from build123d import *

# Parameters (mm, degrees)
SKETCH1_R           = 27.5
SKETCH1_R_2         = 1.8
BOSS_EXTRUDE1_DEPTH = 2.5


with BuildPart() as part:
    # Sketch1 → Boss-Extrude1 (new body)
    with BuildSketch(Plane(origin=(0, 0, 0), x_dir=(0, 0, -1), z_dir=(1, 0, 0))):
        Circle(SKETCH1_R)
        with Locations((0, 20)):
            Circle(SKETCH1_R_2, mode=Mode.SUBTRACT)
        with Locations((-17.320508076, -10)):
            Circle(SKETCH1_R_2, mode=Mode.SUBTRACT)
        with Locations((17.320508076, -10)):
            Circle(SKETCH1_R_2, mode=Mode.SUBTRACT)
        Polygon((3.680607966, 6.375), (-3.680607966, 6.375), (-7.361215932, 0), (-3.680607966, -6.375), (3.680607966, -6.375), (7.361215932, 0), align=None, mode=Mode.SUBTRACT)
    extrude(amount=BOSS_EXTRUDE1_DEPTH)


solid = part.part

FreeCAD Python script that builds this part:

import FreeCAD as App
import Part
import Sketcher

V = App.Vector
Q = App.Units.Quantity

doc = App.newDocument("Part")
body = doc.addObject("PartDesign::Body", "Body")

# Sketch on YZ plane
sketch1 = body.newObject("Sketcher::SketchObject", "Sketch")
sketch1.AttachmentSupport = (doc.getObject("YZ_Plane"), [""])
sketch1.MapMode = "FlatFace"
sketch1.addGeometry(Part.Circle(V(0, 0, 0), V(0, 0, 1), 27.5), False)
sketch1.addGeometry(Part.Circle(V(-10, 17.3, 0), V(0, 0, 1), 1.8), False)
sketch1.addGeometry(Part.Circle(V(-10, -17.3, 0), V(0, 0, 1), 1.8), False)
sketch1.addGeometry(Part.LineSegment(V(6.4, 3.7, 0), V(6.4, -3.7, 0)), False)
sketch1.addGeometry(Part.LineSegment(V(6.4, -3.7, 0), V(0, -7.4, 0)), False)
sketch1.addGeometry(Part.LineSegment(V(0, -7.4, 0), V(-6.4, -3.7, 0)), False)
sketch1.addGeometry(Part.LineSegment(V(-6.4, -3.7, 0), V(-6.4, 3.7, 0)), False)
sketch1.addGeometry(Part.LineSegment(V(-6.4, 3.7, 0), V(0, 7.4, 0)), False)
sketch1.addGeometry(Part.LineSegment(V(0, 7.4, 0), V(6.4, 3.7, 0)), False)
sketch1.addGeometry(Part.Circle(V(20, 0, 0), V(0, 0, 1), 1.8), False)
sketch1.addConstraint(Sketcher.Constraint("Coincident", 3, 2, 4, 1))
sketch1.addConstraint(Sketcher.Constraint("Coincident", 4, 2, 5, 1))
sketch1.addConstraint(Sketcher.Constraint("Coincident", 5, 2, 6, 1))
sketch1.addConstraint(Sketcher.Constraint("Coincident", 6, 2, 7, 1))
sketch1.addConstraint(Sketcher.Constraint("Coincident", 7, 2, 8, 1))
sketch1.addConstraint(Sketcher.Constraint("Coincident", 8, 2, 3, 1))
sketch1.addConstraint(Sketcher.Constraint("Vertical", 3))
sketch1.addConstraint(Sketcher.Constraint("Vertical", 6))
sketch1.addConstraint(Sketcher.Constraint("Coincident", 0, 3, -1, 1))
sketch1.addConstraint(Sketcher.Constraint("Equal", 1, 2))
sketch1.addConstraint(Sketcher.Constraint("Equal", 2, 9))
sketch1.addConstraint(Sketcher.Constraint("Symmetric", 3, 2, 6, 2, -1, 1))
sketch1.addConstraint(Sketcher.Constraint("Symmetric", 4, 2, 7, 2, -1, 1))
sketch1.addConstraint(Sketcher.Constraint("Symmetric", 1, 3, 2, 3, -1))
sketch1.addConstraint(Sketcher.Constraint("PointOnObject", 9, 3, -1))
sketch1.addConstraint(Sketcher.Constraint("PointOnObject", 4, 2, -2))
sketch1.addConstraint(Sketcher.Constraint("Parallel", 5, 8))
sketch1.addConstraint(Sketcher.Constraint("Horizontal", 3, 2, 5, 2))
sketch1.addConstraint(Sketcher.Constraint("Diameter", 0, Q("55 mm")))
sketch1.addConstraint(Sketcher.Constraint("Diameter", 1, Q("3.6 mm")))
sketch1.addConstraint(Sketcher.Constraint("Angle", 4, Q("-150 deg")))
sketch1.addConstraint(Sketcher.Constraint("DistanceX", 1, 3, -1, 1, Q("10 mm")))
sketch1.addConstraint(Sketcher.Constraint("DistanceX", -1, 1, 9, 3, Q("20 mm")))
sketch1.addConstraint(Sketcher.Constraint("DistanceX", 5, 2, 3, 2, Q("12.75 mm")))
sketch1.addConstraint(Sketcher.Constraint("DistanceY", 2, 3, 3, 2, Q("13.6399 mm")))
sketch1.addConstraint(Sketcher.Constraint("DistanceY", 3, 2, 3, 1, Q("7.361216 mm")))
pad1 = body.newObject("PartDesign::Pad", "Pad")
pad1.Profile = sketch1
pad1.Length = 2.5

doc.recompute()
